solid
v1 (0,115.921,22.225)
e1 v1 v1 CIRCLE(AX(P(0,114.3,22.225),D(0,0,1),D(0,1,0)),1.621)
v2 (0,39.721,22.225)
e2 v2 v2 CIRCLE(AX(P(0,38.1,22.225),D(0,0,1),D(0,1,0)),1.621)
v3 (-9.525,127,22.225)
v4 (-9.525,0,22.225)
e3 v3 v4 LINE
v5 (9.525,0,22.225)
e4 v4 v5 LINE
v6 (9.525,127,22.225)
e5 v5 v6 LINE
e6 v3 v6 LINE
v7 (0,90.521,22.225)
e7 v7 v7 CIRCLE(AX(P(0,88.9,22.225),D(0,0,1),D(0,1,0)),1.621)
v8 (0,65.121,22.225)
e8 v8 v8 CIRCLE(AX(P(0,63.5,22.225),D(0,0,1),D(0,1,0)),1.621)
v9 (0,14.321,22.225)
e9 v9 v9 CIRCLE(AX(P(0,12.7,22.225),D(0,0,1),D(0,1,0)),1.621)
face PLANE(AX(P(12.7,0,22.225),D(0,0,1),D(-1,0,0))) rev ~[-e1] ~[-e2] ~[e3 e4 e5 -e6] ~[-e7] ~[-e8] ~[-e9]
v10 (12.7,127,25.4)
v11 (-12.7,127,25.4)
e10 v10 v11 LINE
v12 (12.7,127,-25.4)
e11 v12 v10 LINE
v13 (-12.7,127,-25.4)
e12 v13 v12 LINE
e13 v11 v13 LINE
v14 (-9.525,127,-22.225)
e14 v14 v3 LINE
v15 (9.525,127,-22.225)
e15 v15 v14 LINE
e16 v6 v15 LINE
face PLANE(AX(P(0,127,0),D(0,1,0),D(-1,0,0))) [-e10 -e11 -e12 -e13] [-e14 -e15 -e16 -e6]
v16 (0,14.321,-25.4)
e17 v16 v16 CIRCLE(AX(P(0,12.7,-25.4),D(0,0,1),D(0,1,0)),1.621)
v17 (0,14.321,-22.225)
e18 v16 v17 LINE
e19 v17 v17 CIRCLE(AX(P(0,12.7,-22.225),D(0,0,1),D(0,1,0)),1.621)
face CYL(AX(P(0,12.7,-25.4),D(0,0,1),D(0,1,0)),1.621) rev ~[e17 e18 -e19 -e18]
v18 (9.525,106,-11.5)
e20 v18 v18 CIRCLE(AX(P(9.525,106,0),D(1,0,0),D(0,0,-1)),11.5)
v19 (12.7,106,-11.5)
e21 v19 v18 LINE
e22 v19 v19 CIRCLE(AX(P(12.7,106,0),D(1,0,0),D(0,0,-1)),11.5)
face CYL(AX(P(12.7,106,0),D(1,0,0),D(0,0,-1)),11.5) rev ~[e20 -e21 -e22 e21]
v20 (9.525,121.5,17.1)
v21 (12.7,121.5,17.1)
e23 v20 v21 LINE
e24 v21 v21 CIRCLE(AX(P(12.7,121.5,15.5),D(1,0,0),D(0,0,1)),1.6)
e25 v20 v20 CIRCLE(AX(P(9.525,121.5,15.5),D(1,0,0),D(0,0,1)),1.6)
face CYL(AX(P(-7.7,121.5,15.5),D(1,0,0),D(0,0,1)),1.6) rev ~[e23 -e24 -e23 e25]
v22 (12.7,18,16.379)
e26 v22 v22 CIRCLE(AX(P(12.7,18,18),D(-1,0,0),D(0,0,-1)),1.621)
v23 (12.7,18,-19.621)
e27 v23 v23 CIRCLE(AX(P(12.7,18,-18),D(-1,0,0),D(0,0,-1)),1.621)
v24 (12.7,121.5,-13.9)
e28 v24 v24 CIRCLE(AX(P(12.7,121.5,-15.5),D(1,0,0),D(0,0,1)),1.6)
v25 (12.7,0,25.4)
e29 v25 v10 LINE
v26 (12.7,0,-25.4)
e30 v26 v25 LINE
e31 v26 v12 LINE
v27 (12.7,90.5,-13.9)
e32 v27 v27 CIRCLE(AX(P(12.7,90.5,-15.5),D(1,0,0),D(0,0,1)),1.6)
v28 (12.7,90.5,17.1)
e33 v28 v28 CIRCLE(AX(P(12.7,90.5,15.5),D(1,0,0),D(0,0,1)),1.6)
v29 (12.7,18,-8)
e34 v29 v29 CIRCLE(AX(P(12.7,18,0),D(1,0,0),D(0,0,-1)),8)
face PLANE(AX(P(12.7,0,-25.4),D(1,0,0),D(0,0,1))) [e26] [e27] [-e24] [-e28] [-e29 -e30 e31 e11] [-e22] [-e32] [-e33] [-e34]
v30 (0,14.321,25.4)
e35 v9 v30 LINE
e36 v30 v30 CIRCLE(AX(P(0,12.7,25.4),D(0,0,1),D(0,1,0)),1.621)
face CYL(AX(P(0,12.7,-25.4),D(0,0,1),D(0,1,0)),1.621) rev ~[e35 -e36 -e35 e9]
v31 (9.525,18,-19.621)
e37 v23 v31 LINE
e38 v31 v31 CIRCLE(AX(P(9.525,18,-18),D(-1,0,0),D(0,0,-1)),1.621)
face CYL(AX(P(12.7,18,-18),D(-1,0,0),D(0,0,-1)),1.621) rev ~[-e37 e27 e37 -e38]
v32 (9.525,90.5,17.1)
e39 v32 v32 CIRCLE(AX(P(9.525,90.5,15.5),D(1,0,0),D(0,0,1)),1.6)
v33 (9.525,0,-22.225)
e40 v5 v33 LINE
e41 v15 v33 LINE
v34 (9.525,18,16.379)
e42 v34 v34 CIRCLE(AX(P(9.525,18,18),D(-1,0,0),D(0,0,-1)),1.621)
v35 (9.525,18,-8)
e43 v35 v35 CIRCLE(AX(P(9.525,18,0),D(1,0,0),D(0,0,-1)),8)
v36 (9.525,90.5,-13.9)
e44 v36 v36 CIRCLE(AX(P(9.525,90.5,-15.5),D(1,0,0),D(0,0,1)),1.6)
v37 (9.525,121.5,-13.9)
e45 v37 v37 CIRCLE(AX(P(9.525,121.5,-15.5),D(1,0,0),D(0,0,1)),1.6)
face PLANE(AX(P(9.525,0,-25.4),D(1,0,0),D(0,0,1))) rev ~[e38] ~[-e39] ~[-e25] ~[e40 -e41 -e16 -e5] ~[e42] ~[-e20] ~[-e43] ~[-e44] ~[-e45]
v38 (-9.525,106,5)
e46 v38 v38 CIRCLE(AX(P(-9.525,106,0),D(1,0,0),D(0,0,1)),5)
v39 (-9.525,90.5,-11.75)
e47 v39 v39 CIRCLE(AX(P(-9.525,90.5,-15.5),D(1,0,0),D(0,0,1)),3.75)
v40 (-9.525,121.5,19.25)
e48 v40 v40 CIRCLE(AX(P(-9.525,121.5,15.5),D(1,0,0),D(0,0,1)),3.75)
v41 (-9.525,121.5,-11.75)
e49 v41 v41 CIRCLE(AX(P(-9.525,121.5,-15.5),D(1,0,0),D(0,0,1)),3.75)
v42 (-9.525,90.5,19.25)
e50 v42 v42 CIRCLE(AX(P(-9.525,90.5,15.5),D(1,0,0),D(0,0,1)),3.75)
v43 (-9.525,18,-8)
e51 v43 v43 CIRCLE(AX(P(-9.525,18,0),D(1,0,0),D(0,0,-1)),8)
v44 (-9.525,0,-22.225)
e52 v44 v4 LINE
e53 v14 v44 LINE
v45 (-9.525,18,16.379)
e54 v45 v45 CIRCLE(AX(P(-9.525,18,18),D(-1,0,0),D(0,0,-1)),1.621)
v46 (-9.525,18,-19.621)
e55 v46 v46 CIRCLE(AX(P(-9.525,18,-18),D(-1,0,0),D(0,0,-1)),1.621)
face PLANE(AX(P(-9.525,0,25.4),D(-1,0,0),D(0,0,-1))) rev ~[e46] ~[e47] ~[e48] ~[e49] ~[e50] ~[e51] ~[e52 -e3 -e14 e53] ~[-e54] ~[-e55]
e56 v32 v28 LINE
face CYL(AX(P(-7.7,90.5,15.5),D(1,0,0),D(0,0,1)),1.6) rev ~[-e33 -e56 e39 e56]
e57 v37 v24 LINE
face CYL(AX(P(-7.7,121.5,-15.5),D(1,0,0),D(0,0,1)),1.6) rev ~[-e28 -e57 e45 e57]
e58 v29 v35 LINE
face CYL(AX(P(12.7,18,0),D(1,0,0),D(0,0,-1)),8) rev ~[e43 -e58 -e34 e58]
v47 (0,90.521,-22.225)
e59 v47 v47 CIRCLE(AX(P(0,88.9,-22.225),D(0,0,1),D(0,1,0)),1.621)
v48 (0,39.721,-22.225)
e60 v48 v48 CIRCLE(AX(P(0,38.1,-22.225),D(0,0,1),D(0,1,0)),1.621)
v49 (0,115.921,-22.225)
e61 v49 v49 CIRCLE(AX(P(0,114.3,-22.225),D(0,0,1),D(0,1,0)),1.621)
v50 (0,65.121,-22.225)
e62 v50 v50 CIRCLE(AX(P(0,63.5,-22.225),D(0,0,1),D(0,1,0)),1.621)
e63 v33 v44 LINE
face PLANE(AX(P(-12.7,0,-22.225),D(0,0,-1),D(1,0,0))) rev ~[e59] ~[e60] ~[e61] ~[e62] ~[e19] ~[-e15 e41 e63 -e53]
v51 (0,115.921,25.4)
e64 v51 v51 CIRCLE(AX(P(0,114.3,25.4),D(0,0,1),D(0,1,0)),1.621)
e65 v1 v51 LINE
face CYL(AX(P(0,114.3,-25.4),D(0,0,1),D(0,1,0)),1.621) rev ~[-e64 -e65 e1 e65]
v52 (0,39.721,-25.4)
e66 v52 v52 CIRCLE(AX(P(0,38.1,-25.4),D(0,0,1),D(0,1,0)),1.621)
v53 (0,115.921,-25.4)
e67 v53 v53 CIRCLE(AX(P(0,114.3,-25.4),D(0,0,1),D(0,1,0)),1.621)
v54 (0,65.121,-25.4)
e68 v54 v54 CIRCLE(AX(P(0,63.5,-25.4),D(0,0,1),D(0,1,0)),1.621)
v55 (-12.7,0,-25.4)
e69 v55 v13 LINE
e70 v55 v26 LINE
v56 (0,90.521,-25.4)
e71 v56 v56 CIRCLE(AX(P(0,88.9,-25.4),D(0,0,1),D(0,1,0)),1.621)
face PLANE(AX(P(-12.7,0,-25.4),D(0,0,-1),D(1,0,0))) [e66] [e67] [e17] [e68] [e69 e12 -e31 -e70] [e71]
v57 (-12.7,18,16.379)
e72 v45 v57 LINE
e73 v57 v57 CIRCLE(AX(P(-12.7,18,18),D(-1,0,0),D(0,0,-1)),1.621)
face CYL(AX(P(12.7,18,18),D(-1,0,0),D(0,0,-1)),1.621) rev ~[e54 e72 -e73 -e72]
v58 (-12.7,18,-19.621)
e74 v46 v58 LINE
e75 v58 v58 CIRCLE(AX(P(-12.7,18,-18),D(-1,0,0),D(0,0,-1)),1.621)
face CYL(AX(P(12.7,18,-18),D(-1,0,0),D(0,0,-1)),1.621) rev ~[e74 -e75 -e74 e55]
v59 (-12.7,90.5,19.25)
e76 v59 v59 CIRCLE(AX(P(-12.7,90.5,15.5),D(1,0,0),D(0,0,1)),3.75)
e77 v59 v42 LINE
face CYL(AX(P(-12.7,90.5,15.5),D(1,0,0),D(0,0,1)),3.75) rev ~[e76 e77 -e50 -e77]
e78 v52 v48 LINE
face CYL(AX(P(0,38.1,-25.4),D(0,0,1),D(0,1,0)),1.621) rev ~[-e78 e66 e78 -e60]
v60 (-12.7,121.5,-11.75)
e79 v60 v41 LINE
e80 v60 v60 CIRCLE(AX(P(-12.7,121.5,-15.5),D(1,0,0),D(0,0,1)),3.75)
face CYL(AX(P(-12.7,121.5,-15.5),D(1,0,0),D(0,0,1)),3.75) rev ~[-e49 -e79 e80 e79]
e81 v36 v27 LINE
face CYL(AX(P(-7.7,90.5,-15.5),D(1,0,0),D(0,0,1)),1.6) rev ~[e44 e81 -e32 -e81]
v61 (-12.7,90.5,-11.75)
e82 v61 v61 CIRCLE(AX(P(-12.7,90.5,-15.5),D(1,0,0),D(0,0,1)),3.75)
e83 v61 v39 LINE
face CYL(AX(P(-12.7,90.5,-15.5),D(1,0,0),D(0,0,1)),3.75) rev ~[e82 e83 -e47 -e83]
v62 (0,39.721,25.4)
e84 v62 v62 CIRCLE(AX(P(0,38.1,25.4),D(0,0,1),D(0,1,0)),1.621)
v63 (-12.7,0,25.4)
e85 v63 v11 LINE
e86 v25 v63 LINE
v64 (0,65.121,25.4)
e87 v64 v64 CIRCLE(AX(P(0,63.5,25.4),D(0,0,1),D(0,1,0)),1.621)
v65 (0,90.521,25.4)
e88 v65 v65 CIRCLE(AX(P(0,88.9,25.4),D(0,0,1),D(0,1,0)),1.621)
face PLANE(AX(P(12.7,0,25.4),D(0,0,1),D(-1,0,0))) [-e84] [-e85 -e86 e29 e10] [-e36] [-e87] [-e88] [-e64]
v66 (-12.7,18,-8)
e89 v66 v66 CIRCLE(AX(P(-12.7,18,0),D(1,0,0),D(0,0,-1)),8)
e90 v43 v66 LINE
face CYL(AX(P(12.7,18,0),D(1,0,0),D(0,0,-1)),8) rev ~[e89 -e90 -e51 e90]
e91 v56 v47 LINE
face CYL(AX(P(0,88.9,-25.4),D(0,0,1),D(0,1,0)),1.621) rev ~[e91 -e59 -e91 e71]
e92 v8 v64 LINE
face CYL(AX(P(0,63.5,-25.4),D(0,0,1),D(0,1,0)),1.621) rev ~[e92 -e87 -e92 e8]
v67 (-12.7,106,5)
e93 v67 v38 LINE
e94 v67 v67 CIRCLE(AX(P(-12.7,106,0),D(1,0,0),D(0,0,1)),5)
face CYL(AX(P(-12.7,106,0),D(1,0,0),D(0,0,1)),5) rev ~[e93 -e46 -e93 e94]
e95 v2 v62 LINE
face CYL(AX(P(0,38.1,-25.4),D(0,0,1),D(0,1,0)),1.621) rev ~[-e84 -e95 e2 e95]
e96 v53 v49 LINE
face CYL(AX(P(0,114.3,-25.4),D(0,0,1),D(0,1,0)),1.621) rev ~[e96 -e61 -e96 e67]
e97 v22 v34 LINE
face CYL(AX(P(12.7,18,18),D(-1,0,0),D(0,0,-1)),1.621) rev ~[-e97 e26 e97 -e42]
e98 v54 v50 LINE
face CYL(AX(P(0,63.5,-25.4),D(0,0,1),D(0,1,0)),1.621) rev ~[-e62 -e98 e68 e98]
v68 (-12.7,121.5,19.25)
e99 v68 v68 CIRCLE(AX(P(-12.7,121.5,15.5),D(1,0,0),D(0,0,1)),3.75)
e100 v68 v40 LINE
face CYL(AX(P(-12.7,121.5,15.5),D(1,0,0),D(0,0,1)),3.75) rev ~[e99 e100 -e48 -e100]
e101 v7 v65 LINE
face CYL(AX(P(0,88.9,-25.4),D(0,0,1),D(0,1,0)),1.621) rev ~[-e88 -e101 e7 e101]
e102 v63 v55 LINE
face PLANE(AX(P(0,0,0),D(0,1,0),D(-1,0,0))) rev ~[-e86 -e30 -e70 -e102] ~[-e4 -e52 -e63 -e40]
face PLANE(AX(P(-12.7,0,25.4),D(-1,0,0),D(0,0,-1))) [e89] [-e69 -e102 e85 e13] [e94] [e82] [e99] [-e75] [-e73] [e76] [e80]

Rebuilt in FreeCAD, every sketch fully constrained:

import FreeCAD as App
import Part
import Sketcher
from FreeCAD import Vector
Q = App.Units.Quantity


def faces_at(feature, points):
    """Names of the faces that lie closest to the given points."""
    faces = feature.Shape.Faces
    near = lambda p: min(range(len(faces)), key=lambda i: faces[i].distToShape(Part.Vertex(*p))[0])
    return sorted({f"Face{near(p) + 1}" for p in points})


def add_polygon(sketch, points):
    """Adds a closed chain of lines whose ends are joined by coincident constraints."""
    first, n = sketch.GeometryCount, len(points)
    for a, b in zip(points, points[1:] + points[:1]):
        sketch.addGeometry(Part.LineSegment(App.Vector(*a, 0), App.Vector(*b, 0)), False)
    for i in range(n):
        sketch.addConstraint(Sketcher.Constraint("Coincident", first + i, 2, first + (i + 1) % n, 1))

doc = App.newDocument("Part")
params = doc.addObject("Spreadsheet::Sheet", "Params")
for row, (alias, value) in enumerate([
    ("sketch1_width", "1 in"),
    ("sketch1_height", "2 in"),
    ("pad1_length", "5 in"),
    ("thickness_wall", "0.125 in"),
    ("hole_diameter", "3.2 mm"),
    ("hole_cbore_diameter", "7.5 mm"),
    ("hole_cbore_depth", "5 mm"),
    ("hole2_diameter", "0.3937008 in"),
    ("pocket1_length", "0.875 in"),
    ("hole3_diameter", "3.242 mm"),
    ("hole4_diameter", "3.242 mm"),
    ("linearpattern_pitch", "2 in"),
], start=1):
    params.set(f"A{row}", alias)
    params.set(f"B{row}", "=" + value)
    params.setAlias(f"B{row}", alias)

body = doc.addObject("PartDesign::Body", "Body")

sketch1 = doc.addObject("Sketcher::SketchObject", "Sketch")
body.addObject(sketch1)
sketch1.AttachmentSupport = (doc.XZ_Plane, [""])
sketch1.MapMode = "FlatFace"
add_polygon(sketch1, [(-12.7, 25.4), (12.7, 25.4), (12.7, -25.4), (-12.7, -25.4)])
sketch1.addConstraint([
    Sketcher.Constraint("Horizontal", 0),
    Sketcher.Constraint("Vertical", 1),
    Sketcher.Constraint("Horizontal", 2),
    Sketcher.Constraint("Vertical", 3),
    Sketcher.Constraint("Symmetric", 0, 2, 2, 2, -1, 1),
    Sketcher.Constraint("DistanceX", 0, 1, 0, 2, Q("1 in")),
    Sketcher.Constraint("DistanceY", 1, 2, 1, 1, Q("2 in")),
])
sketch1.setExpression("Constraints[9]", "Params.sketch1_width")
sketch1.setExpression("Constraints[10]", "Params.sketch1_height")
pad1 = doc.addObject("PartDesign::Pad", "Pad")
body.addObject(pad1)
pad1.Profile = sketch1
pad1.setExpression("Length", "Params.pad1_length")
pad1.Reversed = True
doc.recompute()

thickness = doc.addObject("PartDesign::Thickness", "Thickness")
body.addObject(thickness)
thickness.Base = (pad1, faces_at(pad1, [(-4.233, 0, 8.467), (-4.233, 127, 8.467)]))
thickness.setExpression("Value", "Params.thickness_wall")
thickness.Reversed = True
thickness.Join = "Intersection"

sketch2 = doc.addObject("Sketcher::SketchObject", "Sketch001")
body.addObject(sketch2)
sketch2.AttachmentSupport = (doc.YZ_Plane, [""])
sketch2.MapMode = "FlatFace"
sketch2.AttachmentOffset = App.Placement(Vector(0, 0, -0.5 * 25.4), App.Rotation())
sketch2.addGeometry([
    Part.Circle(Vector(121.5, -15.5, 0), Vector(0, 0, 1), 1.6),
    Part.Circle(Vector(121.5, 15.5, 0), Vector(0, 0, 1), 1.6),
    Part.Circle(Vector(90.5, 15.5, 0), Vector(0, 0, 1), 1.6),
    Part.Circle(Vector(90.5, -15.5, 0), Vector(0, 0, 1), 1.6),
], False)
sketch2.addConstraint([
    Sketcher.Constraint("Equal", 0, 1),
    Sketcher.Constraint("Equal", 1, 2),
    Sketcher.Constraint("Equal", 2, 3),
    Sketcher.Constraint("Symmetric", 0, 3, 1, 3, -1),
    Sketcher.Constraint("Symmetric", 2, 3, 3, 3, -1),
    Sketcher.Constraint("Horizontal", 1, 3, 2, 3),
    Sketcher.Constraint("Diameter", 0, Q("3.2 mm")),
    Sketcher.Constraint("DistanceX", -1, 1, 2, 3, Q("3.563 in")),
    Sketcher.Constraint("DistanceX", -1, 1, 0, 3, Q("121.5 mm")),
    Sketcher.Constraint("DistanceY", 0, 3, -1, 1, Q("15.5 mm")),
])
doc.recompute()
hole = doc.addObject("PartDesign::Hole", "Hole")
body.addObject(hole)
hole.Profile = sketch2
hole.ThreadType = "None"
hole.setExpression("Diameter", "Params.hole_diameter")
hole.DepthType = "ThroughAll"
hole.HoleCutType = "Counterbore"
hole.setExpression("HoleCutDiameter", "Params.hole_cbore_diameter")
hole.setExpression("HoleCutDepth", "Params.hole_cbore_depth")
hole.Reversed = True

sketch3 = doc.addObject("Sketcher::SketchObject", "Sketch002")
body.addObject(sketch3)
sketch3.AttachmentSupport = (doc.YZ_Plane, [""])
sketch3.MapMode = "FlatFace"
sketch3.AttachmentOffset = App.Placement(Vector(0, 0, -0.5 * 25.4), App.Rotation())
sketch3.addGeometry(Part.Circle(Vector(106, 0, 0), Vector(0, 0, 1), 5), False)
sketch3.addConstraint([
    Sketcher.Constraint("PointOnObject", 0, 3, -1),
    Sketcher.Constraint("Diameter", 0, Q("0.3937 in")),
    Sketcher.Constraint("DistanceX", -1, 1, 0, 3, Q("106 mm")),
])
doc.recompute()
hole2 = doc.addObject("PartDesign::Hole", "Hole001")
body.addObject(hole2)
hole2.Profile = sketch3
hole2.ThreadType = "None"
hole2.setExpression("Diameter", "Params.hole2_diameter")
hole2.DepthType = "ThroughAll"
hole2.Reversed = True

sketch4 = doc.addObject("Sketcher::SketchObject", "Sketch003")
body.addObject(sketch4)
sketch4.AttachmentSupport = (doc.YZ_Plane, [""])
sketch4.MapMode = "FlatFace"
sketch4.AttachmentOffset = App.Placement(Vector(0, 0, 0.5 * 25.4), App.Rotation())
sketch4.addGeometry(Part.Circle(Vector(106, 0, 0), Vector(0, 0, 1), 11.5), False)
sketch4.addConstraint([
    Sketcher.Constraint("PointOnObject", 0, 3, -1),
    Sketcher.Constraint("Diameter", 0, Q("0.9055 in")),
    Sketcher.Constraint("DistanceX", -1, 1, 0, 3, Q("106 mm")),
])
pocket1 = doc.addObject("PartDesign::Pocket", "Pocket")
body.addObject(pocket1)
pocket1.Profile = sketch4
pocket1.setExpression("Length", "Params.pocket1_length")

sketch5 = doc.addObject("Sketcher::SketchObject", "Sketch004")
body.addObject(sketch5)
sketch5.AttachmentSupport = (doc.YZ_Plane, [""])
sketch5.MapMode = "FlatFace"
sketch5.AttachmentOffset = App.Placement(Vector(0, 0, 0.5 * 25.4), App.Rotation())
sketch5.addGeometry(Part.Circle(Vector(18, 0, 0), Vector(0, 0, 1), 8), False)
sketch5.addConstraint([
    Sketcher.Constraint("PointOnObject", 0, 3, -1),
    Sketcher.Constraint("Diameter", 0, Q("16 mm")),
    Sketcher.Constraint("DistanceX", -1, 1, 0, 3, Q("18 mm")),
])
pocket2 = doc.addObject("PartDesign::Pocket", "Pocket001")
body.addObject(pocket2)
pocket2.Profile = sketch5
pocket2.Type = "ThroughAll"

sketch6 = doc.addObject("Sketcher::SketchObject", "Sketch005")
body.addObject(sketch6)
sketch6.AttachmentSupport = (doc.XY_Plane, [""])
sketch6.MapMode = "FlatFace"
sketch6.AttachmentOffset = App.Placement(Vector(0, 0, -1 * 25.4), App.Rotation())
sketch6.addGeometry([
    Part.Circle(Vector(0, 88.9, 0), Vector(0, 0, 1), 1.621),
    Part.Circle(Vector(0, 114.3, 0), Vector(0, 0, 1), 1.621),
    Part.Circle(Vector(0, 63.5, 0), Vector(0, 0, 1), 1.621),
], False)
sketch6.addConstraint([
    Sketcher.Constraint("Equal", 0, 1),
    Sketcher.Constraint("Equal", 1, 2),
    Sketcher.Constraint("PointOnObject", 0, 3, -2),
    Sketcher.Constraint("PointOnObject", 1, 3, -2),
    Sketcher.Constraint("PointOnObject", 2, 3, -2),
    Sketcher.Constraint("DistanceY", 0, 3, 1, 3, Q("1 in")),
    Sketcher.Constraint("DistanceY", 2, 3, 0, 3, Q("1 in")),
    Sketcher.Constraint("DistanceY", -1, 1, 0, 3, Q("3.5 in")),
    Sketcher.Constraint("Diameter", 0, Q("3.242 mm")),
])
doc.recompute()
hole3 = doc.addObject("PartDesign::Hole", "Hole002")
body.addObject(hole3)
hole3.Profile = sketch6
hole3.ThreadType = "None"
hole3.setExpression("Diameter", "Params.hole3_diameter")
hole3.DepthType = "ThroughAll"
hole3.Reversed = True

sketch7 = doc.addObject("Sketcher::SketchObject", "Sketch006")
body.addObject(sketch7)
sketch7.AttachmentSupport = (doc.YZ_Plane, [""])
sketch7.MapMode = "FlatFace"
sketch7.AttachmentOffset = App.Placement(Vector(0, 0, 0.5 * 25.4), App.Rotation())
sketch7.addGeometry([
    Part.Circle(Vector(18, -18, 0), Vector(0, 0, 1), 1.621),
    Part.Circle(Vector(18, 18, 0), Vector(0, 0, 1), 1.621),
], False)
sketch7.addConstraint([
    Sketcher.Constraint("Equal", 0, 1),
    Sketcher.Constraint("Symmetric", 0, 3, 1, 3, -1),
    Sketcher.Constraint("Diameter", 0, Q("3.242 mm")),
    Sketcher.Constraint("DistanceX", -1, 1, 0, 3, Q("18 mm")),
    Sketcher.Constraint("DistanceY", 0, 3, -1, 1, Q("18 mm")),
])
doc.recompute()
hole4 = doc.addObject("PartDesign::Hole", "Hole003")
body.addObject(hole4)
hole4.Profile = sketch7
hole4.ThreadType = "None"
hole4.setExpression("Diameter", "Params.hole4_diameter")
hole4.DepthType = "ThroughAll"
doc.recompute()

linearpattern = doc.addObject("PartDesign::LinearPattern", "LinearPattern")
body.addObject(linearpattern)
linearpattern.Originals = [hole3]
linearpattern.Direction = (doc.Y_Axis, [""])
linearpattern.Mode = "offset"
linearpattern.setExpression("Offset", "Params.linearpattern_pitch")
linearpattern.Occurrences = 2
linearpattern.Reversed = True
body.Tip = linearpattern

doc.recompute()
